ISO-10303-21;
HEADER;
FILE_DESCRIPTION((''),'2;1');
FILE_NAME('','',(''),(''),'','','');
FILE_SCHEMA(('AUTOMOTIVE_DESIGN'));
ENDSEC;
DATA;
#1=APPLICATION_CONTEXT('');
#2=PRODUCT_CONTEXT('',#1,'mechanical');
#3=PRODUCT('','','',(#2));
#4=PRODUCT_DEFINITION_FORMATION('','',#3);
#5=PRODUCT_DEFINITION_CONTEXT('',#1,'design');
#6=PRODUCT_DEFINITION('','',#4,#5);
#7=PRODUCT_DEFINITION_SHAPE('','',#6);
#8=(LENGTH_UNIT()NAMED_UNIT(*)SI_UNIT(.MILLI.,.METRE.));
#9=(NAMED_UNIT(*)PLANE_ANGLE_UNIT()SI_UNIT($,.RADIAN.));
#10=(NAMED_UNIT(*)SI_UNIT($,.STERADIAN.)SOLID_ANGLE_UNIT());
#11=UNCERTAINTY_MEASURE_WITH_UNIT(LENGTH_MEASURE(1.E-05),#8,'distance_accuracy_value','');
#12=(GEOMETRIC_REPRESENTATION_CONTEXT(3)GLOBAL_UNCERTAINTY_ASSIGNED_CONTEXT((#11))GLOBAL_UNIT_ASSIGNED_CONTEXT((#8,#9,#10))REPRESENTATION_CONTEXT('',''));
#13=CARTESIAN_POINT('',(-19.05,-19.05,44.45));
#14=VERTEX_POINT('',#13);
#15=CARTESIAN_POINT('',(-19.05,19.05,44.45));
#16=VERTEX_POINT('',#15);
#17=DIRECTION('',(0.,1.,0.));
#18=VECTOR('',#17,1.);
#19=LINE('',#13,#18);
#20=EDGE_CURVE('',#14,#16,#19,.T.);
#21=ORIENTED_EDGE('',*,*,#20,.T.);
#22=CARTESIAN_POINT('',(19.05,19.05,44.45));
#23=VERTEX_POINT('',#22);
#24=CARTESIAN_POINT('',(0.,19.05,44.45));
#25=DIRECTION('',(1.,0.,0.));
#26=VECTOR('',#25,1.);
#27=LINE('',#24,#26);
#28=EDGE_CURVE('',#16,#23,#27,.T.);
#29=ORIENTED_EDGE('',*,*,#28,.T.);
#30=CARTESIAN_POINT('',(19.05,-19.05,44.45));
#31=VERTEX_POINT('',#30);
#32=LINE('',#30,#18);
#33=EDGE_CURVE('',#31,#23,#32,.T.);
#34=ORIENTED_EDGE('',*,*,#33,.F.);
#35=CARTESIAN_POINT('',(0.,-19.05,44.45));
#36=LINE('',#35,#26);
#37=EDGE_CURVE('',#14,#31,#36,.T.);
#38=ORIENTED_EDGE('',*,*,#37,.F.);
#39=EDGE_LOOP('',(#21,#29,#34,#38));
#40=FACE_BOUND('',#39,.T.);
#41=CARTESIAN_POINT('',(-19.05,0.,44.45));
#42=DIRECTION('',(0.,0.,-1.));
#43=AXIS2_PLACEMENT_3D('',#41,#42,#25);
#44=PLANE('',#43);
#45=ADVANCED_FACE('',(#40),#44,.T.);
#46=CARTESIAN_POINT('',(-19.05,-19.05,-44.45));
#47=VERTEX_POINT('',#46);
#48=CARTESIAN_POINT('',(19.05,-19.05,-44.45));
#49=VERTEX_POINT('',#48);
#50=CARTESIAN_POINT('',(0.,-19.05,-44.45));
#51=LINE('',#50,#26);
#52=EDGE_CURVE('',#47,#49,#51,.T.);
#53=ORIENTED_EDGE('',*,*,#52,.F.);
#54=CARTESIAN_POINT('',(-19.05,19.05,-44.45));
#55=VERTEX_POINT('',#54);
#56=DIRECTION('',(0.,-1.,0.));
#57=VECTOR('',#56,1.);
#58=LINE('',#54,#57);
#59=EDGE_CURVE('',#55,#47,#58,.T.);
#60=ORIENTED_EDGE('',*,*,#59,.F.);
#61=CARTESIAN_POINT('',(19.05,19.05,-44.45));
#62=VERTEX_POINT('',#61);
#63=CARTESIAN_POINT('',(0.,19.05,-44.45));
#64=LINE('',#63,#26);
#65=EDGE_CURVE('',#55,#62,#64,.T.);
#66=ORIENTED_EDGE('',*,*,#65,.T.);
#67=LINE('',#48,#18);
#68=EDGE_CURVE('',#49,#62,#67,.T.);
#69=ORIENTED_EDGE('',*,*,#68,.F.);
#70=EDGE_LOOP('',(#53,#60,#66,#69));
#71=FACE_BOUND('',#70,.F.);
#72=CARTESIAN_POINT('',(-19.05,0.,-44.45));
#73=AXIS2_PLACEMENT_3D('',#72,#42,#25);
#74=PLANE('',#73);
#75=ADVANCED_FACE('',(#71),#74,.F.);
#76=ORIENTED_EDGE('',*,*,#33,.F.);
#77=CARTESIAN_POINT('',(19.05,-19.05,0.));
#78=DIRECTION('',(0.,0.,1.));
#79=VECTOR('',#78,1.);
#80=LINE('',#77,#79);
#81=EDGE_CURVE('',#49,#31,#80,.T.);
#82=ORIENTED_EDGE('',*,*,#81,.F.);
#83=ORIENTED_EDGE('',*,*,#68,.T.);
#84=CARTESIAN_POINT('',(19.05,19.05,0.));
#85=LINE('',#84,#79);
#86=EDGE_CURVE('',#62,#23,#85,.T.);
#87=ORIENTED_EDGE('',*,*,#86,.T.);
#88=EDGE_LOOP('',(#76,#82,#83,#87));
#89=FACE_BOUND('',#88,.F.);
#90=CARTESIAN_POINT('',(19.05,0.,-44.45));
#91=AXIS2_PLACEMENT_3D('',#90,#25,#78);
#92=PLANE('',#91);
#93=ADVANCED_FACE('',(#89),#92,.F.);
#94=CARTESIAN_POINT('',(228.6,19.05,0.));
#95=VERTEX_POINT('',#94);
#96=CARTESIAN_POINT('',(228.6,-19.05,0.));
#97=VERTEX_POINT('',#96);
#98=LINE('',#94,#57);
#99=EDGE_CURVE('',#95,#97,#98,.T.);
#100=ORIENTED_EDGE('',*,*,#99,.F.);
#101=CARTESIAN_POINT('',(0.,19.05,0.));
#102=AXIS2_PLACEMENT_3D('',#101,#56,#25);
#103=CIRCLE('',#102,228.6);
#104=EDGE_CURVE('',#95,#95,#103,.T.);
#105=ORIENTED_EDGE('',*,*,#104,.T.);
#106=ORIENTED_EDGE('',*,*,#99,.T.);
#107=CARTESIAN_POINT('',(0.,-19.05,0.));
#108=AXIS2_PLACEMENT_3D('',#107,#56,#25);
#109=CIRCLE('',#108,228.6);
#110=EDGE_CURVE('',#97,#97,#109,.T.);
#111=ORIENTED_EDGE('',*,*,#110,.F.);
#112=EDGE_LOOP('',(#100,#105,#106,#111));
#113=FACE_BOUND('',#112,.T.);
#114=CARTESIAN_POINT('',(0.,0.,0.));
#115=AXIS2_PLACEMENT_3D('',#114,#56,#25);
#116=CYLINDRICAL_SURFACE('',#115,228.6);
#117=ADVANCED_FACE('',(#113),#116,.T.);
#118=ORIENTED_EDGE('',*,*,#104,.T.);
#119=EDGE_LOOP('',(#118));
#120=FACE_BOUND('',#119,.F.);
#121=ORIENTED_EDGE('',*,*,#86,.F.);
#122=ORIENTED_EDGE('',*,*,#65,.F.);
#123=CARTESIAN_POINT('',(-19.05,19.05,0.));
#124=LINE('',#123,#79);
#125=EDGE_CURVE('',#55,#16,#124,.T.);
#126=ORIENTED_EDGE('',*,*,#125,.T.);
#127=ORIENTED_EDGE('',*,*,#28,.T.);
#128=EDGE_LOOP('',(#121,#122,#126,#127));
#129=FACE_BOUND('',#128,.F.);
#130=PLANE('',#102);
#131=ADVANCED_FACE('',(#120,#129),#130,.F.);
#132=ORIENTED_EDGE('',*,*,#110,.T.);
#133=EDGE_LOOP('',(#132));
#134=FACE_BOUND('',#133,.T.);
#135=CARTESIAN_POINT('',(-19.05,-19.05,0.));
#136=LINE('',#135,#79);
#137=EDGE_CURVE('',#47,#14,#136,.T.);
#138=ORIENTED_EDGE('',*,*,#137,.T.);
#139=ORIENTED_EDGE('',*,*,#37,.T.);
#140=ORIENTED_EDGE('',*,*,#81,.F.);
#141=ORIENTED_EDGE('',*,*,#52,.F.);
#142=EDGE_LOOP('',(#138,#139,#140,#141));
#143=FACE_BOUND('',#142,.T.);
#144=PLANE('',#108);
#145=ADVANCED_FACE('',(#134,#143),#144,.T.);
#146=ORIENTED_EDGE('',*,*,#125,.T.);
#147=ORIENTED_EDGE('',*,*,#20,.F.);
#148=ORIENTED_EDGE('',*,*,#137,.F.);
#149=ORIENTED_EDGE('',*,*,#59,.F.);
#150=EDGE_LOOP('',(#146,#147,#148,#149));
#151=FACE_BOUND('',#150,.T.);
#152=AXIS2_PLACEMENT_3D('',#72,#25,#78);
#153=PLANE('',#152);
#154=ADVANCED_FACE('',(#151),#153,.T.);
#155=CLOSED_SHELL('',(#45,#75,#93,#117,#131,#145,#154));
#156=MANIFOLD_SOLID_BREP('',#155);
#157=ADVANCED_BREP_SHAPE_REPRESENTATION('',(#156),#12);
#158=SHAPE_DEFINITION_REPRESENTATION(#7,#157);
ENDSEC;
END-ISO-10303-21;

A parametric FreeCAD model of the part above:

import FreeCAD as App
import Part
import Sketcher
Q = App.Units.Quantity


def add_polygon(sketch, points):
    """Adds a closed chain of lines whose ends are joined by coincident constraints."""
    first, n = sketch.GeometryCount, len(points)
    for a, b in zip(points, points[1:] + points[:1]):
        sketch.addGeometry(Part.LineSegment(App.Vector(*a, 0), App.Vector(*b, 0)), False)
    for i in range(n):
        sketch.addConstraint(Sketcher.Constraint("Coincident", first + i, 2, first + (i + 1) % n, 1))

doc = App.newDocument("Part")
params = doc.addObject("Spreadsheet::Sheet", "Params")
for row, (alias, value) in enumerate([
    ("sketch1_diameter", "18 in"),
    ("sketch1_width", "1.5 in"),
    ("sketch1_height", "3.5 in"),
    ("pad1_length", "1.5 in"),
], start=1):
    params.set(f"A{row}", alias)
    params.set(f"B{row}", "=" + value)
    params.setAlias(f"B{row}", alias)

body = doc.addObject("PartDesign::Body", "Body")

# Sketch on XZ plane
sketch1 = body.newObject("Sketcher::SketchObject", "Sketch")
sketch1.AttachmentSupport = (doc.getObject("XZ_Plane"), [""])
sketch1.MapMode = "FlatFace"
sketch1.addGeometry(Part.Circle(App.Vector(0, 0, 0), App.Vector(0, 0, 1), 229), False)  # 0
add_polygon(sketch1, [(19, -44), (-19, -44), (-19, 44), (19, 44)])  # lines 1-4
sketch1.addConstraint([
    Sketcher.Constraint("Horizontal", 1),
    Sketcher.Constraint("Vertical", 2),
    Sketcher.Constraint("Horizontal", 3),
    Sketcher.Constraint("Vertical", 4),
    Sketcher.Constraint("Coincident", 0, 3, -1, 1),
    Sketcher.Constraint("Symmetric", 1, 2, 3, 2, -1, 1),
    Sketcher.Constraint("Diameter", 0, Q("18 in")),
    Sketcher.Constraint("DistanceX", 1, 2, 1, 1, Q("1.5 in")),
    Sketcher.Constraint("DistanceY", 2, 1, 2, 2, Q("3.5 in")),
])
sketch1.setExpression("Constraints[10]", "Params.sketch1_diameter")
sketch1.setExpression("Constraints[11]", "Params.sketch1_width")
sketch1.setExpression("Constraints[12]", "Params.sketch1_height")
pad1 = body.newObject("PartDesign::Pad", "Pad")
pad1.Profile = sketch1
pad1.setExpression("Length", "Params.pad1_length")
pad1.Midplane = True

doc.recompute()
